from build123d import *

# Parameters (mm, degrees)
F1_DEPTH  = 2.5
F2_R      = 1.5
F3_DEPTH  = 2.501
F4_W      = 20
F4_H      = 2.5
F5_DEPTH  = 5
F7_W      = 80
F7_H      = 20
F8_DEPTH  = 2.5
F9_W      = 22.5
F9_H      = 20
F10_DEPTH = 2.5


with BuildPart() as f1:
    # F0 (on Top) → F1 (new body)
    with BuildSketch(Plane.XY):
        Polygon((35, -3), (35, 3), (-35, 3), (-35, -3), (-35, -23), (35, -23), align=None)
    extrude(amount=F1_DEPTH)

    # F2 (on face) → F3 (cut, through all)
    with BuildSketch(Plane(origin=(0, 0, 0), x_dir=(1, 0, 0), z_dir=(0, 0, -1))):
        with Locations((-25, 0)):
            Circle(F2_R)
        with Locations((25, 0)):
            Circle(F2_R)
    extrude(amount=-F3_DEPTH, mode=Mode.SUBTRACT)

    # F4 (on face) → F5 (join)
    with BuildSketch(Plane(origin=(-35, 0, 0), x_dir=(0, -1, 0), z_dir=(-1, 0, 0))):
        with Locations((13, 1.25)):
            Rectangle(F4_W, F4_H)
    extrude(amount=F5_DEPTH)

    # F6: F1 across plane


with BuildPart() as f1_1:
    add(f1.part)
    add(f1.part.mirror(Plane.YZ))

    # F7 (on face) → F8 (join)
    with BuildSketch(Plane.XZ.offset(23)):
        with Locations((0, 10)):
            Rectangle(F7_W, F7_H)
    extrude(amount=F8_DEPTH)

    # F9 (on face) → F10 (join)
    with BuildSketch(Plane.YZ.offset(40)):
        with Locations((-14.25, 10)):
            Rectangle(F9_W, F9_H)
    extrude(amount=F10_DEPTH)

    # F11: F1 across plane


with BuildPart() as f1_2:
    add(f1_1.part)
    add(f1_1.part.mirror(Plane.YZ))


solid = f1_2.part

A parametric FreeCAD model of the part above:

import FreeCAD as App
import Part
import Sketcher
from FreeCAD import Vector
Q = App.Units.Quantity


def add_polygon(sketch, points):
    """Adds a closed chain of lines whose ends are joined by coincident constraints."""
    first, n = sketch.GeometryCount, len(points)
    for a, b in zip(points, points[1:] + points[:1]):
        sketch.addGeometry(Part.LineSegment(App.Vector(*a, 0), App.Vector(*b, 0)), False)
    for i in range(n):
        sketch.addConstraint(Sketcher.Constraint("Coincident", first + i, 2, first + (i + 1) % n, 1))

doc = App.newDocument("Part")
params = doc.addObject("Spreadsheet::Sheet", "Params")
for row, (alias, value) in enumerate([
    ("sketch1_width", "70 mm"),
    ("sketch1_height", "26 mm"),
    ("pad1_length", "2.5 mm"),
    ("sketch2_diameter", "3 mm"),
    ("sketch3_width", "20 mm"),
    ("sketch3_height", "2.5 mm"),
    ("pad2_length", "5 mm"),
    ("sketch4_width", "80 mm"),
    ("sketch4_height", "20 mm"),
    ("pad3_length", "2.5 mm"),
    ("sketch5_height", "20 mm"),
    ("sketch5_width", "22.5 mm"),
    ("pad4_length", "2.5 mm"),
], start=1):
    params.set(f"A{row}", alias)
    params.set(f"B{row}", "=" + value)
    params.setAlias(f"B{row}", alias)

body = doc.addObject("PartDesign::Body", "Body")

sketch1 = body.newObject("Sketcher::SketchObject", "Sketch")
sketch1.AttachmentSupport = (doc.getObject("XY_Plane"), [""])
sketch1.MapMode = "FlatFace"
add_polygon(sketch1, [(35, 3), (-35, 3), (-35, -23), (35, -23)])
sketch1.addConstraint([
    Sketcher.Constraint("Horizontal", 0),
    Sketcher.Constraint("Vertical", 1),
    Sketcher.Constraint("Horizontal", 2),
    Sketcher.Constraint("Vertical", 3),
    Sketcher.Constraint("DistanceX", 0, 2, 0, 1, Q("70 mm")),
    Sketcher.Constraint("DistanceY", 1, 2, 1, 1, Q("26 mm")),
    Sketcher.Constraint("DistanceX", 0, 2, -1, 1, Q("35 mm")),
    Sketcher.Constraint("DistanceY", -1, 1, 0, 2, Q("3 mm")),
])
sketch1.setExpression("Constraints[8]", "Params.sketch1_width")
sketch1.setExpression("Constraints[9]", "Params.sketch1_height")
pad1 = body.newObject("PartDesign::Pad", "Pad")
pad1.Profile = sketch1
pad1.setExpression("Length", "Params.pad1_length")

sketch2 = body.newObject("Sketcher::SketchObject", "Sketch001")
sketch2.AttachmentSupport = (doc.getObject("XY_Plane"), [""])
sketch2.MapMode = "FlatFace"
sketch2.addGeometry([
    Part.Circle(Vector(-25, 0, 0), Vector(0, 0, 1), 1.5),
    Part.Circle(Vector(25, 0, 0), Vector(0, 0, 1), 1.5),
], False)
sketch2.addConstraint([
    Sketcher.Constraint("Equal", 0, 1),
    Sketcher.Constraint("Symmetric", 0, 3, 1, 3, -1, 1),
    Sketcher.Constraint("PointOnObject", 0, 3, -1),
    Sketcher.Constraint("Diameter", 0, Q("3 mm")),
    Sketcher.Constraint("DistanceX", 0, 3, -1, 1, Q("25 mm")),
])
sketch2.setExpression("Constraints[3]", "Params.sketch2_diameter")
pocket1 = body.newObject("PartDesign::Pocket", "Pocket")
pocket1.Profile = sketch2
pocket1.Type = "ThroughAll"
pocket1.Reversed = True

sketch3 = body.newObject("Sketcher::SketchObject", "Sketch002")
sketch3.AttachmentSupport = (doc.getObject("YZ_Plane"), [""])
sketch3.MapMode = "FlatFace"
sketch3.AttachmentOffset = App.Placement(Vector(0, 0, -35), App.Rotation())
add_polygon(sketch3, [(-3, 2.5), (-3, 0), (-23, 0), (-23, 2.5)])
sketch3.addConstraint([
    Sketcher.Constraint("Vertical", 0),
    Sketcher.Constraint("Horizontal", 1),
    Sketcher.Constraint("Vertical", 2),
    Sketcher.Constraint("Horizontal", 3),
    Sketcher.Constraint("PointOnObject", 0, 2, -1),
    Sketcher.Constraint("DistanceX", 1, 2, 1, 1, Q("20 mm")),
    Sketcher.Constraint("DistanceY", 0, 2, 0, 1, Q("2.5 mm")),
    Sketcher.Constraint("DistanceX", 0, 2, -1, 1, Q("3 mm")),
])
sketch3.setExpression("Constraints[9]", "Params.sketch3_width")
sketch3.setExpression("Constraints[10]", "Params.sketch3_height")
pad2 = body.newObject("PartDesign::Pad", "Pad001")
pad2.Profile = sketch3
pad2.setExpression("Length", "Params.pad2_length")
pad2.Reversed = True
body2 = doc.addObject("PartDesign::Body", "Body001")
doc.recompute()

body2.BaseFeature = body
doc.recompute()

mirroring = doc.addObject("Part::Mirroring", "Mirroring")
mirroring.Source = body
mirroring.Base = Vector(0, 0, 0)
mirroring.Normal = Vector(1, 0, 0)
body3 = doc.addObject("PartDesign::Body", "Body002")
body3.BaseFeature = mirroring
boolean = body2.newObject("PartDesign::Boolean", "Boolean")
boolean.Type = "Fuse"
boolean.addObjects([body3])
doc.recompute()

sketch4 = body2.newObject("Sketcher::SketchObject", "Sketch003")
sketch4.AttachmentSupport = (doc.getObject("XZ_Plane001"), [""])
sketch4.MapMode = "FlatFace"
sketch4.AttachmentOffset = App.Placement(Vector(0, 0, 23), App.Rotation())
add_polygon(sketch4, [(-40, 20), (-40, 0), (40, 0), (40, 20)])
sketch4.addConstraint([
    Sketcher.Constraint("Vertical", 0),
    Sketcher.Constraint("Horizontal", 1),
    Sketcher.Constraint("Vertical", 2),
    Sketcher.Constraint("Horizontal", 3),
    Sketcher.Constraint("Symmetric", 0, 2, 1, 2, -1, 1),
    Sketcher.Constraint("DistanceX", 1, 1, 1, 2, Q("80 mm")),
    Sketcher.Constraint("DistanceY", 0, 2, 0, 1, Q("20 mm")),
])
sketch4.setExpression("Constraints[9]", "Params.sketch4_width")
sketch4.setExpression("Constraints[10]", "Params.sketch4_height")
pad3 = body2.newObject("PartDesign::Pad", "Pad002")
pad3.Profile = sketch4
pad3.setExpression("Length", "Params.pad3_length")

sketch5 = body2.newObject("Sketcher::SketchObject", "Sketch004")
sketch5.AttachmentSupport = (doc.getObject("YZ_Plane001"), [""])
sketch5.MapMode = "FlatFace"
sketch5.AttachmentOffset = App.Placement(Vector(0, 0, 40), App.Rotation())
add_polygon(sketch5, [(-26, 20), (-26, 0), (-3, 0), (-3, 20)])
sketch5.addConstraint([
    Sketcher.Constraint("Vertical", 0),
    Sketcher.Constraint("Horizontal", 1),
    Sketcher.Constraint("Vertical", 2),
    Sketcher.Constraint("Horizontal", 3),
    Sketcher.Constraint("PointOnObject", 0, 2, -1),
    Sketcher.Constraint("DistanceY", 0, 2, 0, 1, Q("20 mm")),
    Sketcher.Constraint("DistanceX", 1, 1, 1, 2, Q("22.5 mm")),
    Sketcher.Constraint("DistanceX", 1, 2, -1, 1, Q("3 mm")),
])
sketch5.setExpression("Constraints[9]", "Params.sketch5_height")
sketch5.setExpression("Constraints[10]", "Params.sketch5_width")
pad4 = body2.newObject("PartDesign::Pad", "Pad003")
pad4.Profile = sketch5
pad4.setExpression("Length", "Params.pad4_length")
body4 = doc.addObject("PartDesign::Body", "Body003")
doc.recompute()

body4.BaseFeature = body2
doc.recompute()

mirroring2 = doc.addObject("Part::Mirroring", "Mirroring001")
mirroring2.Source = body2
mirroring2.Base = Vector(0, 0, 0)
mirroring2.Normal = Vector(1, 0, 0)
body5 = doc.addObject("PartDesign::Body", "Body004")
body5.BaseFeature = mirroring2
boolean2 = body4.newObject("PartDesign::Boolean", "Boolean001")
boolean2.Type = "Fuse"
boolean2.addObjects([body5])
doc.recompute()
mirroring.Visibility = False
mirroring2.Visibility = False

doc.recompute()
